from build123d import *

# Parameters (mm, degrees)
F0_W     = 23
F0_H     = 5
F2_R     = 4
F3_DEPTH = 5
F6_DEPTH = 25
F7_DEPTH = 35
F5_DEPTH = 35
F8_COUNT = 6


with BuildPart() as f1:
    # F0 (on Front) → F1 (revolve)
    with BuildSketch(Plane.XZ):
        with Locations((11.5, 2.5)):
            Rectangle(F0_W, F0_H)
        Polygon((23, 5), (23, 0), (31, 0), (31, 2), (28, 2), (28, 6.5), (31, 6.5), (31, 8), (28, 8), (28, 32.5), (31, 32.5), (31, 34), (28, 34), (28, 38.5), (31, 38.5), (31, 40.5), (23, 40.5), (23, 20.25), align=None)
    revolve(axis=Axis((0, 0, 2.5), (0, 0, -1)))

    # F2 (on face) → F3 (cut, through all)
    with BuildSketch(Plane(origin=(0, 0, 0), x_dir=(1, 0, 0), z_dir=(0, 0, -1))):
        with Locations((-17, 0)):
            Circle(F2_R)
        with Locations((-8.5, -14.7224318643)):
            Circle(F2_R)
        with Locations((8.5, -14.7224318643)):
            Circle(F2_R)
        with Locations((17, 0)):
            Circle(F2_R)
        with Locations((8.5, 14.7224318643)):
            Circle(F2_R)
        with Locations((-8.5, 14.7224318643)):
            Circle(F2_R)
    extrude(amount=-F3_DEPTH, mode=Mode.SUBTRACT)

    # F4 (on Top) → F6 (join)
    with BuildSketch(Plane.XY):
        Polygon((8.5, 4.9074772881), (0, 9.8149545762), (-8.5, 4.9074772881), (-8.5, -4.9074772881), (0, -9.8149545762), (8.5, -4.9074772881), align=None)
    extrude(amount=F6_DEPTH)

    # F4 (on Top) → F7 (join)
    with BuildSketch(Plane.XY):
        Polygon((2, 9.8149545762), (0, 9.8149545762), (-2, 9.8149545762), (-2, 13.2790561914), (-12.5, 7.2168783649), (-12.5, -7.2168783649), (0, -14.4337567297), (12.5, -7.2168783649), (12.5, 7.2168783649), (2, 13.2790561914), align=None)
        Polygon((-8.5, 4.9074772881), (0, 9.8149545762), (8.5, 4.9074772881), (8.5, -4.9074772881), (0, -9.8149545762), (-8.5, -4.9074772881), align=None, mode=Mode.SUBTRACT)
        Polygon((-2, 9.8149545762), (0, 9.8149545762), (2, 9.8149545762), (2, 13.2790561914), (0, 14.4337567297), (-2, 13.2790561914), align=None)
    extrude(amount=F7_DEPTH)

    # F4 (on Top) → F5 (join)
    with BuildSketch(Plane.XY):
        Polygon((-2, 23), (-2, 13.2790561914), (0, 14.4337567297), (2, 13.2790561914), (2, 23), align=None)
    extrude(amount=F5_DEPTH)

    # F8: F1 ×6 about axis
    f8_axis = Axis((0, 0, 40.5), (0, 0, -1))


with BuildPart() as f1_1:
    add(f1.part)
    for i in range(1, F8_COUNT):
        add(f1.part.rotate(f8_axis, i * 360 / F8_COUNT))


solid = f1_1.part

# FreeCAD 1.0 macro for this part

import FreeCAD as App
import Part
import Sketcher
from FreeCAD import Vector
Q = App.Units.Quantity

doc = App.newDocument("Part")
body = doc.addObject("PartDesign::Body", "Body")

# Sketch on XZ plane
sketch1 = body.newObject("Sketcher::SketchObject", "Sketch")
sketch1.AttachmentSupport = (doc.getObject("XZ_Plane"), [""])
sketch1.MapMode = "FlatFace"
sketch1.addGeometry(Part.LineSegment(Vector(0, 5, 0), Vector(0, 0, 0)), False)
sketch1.addGeometry(Part.LineSegment(Vector(0, 0, 0), Vector(31, 0, 0)), False)
sketch1.addGeometry(Part.LineSegment(Vector(31, 0, 0), Vector(31, 2, 0)), False)
sketch1.addGeometry(Part.LineSegment(Vector(31, 2, 0), Vector(28, 2, 0)), False)
sketch1.addGeometry(Part.LineSegment(Vector(28, 2, 0), Vector(28, 6.5, 0)), False)
sketch1.addGeometry(Part.LineSegment(Vector(28, 6.5, 0), Vector(31, 6.5, 0)), False)
sketch1.addGeometry(Part.LineSegment(Vector(31, 6.5, 0), Vector(31, 8, 0)), False)
sketch1.addGeometry(Part.LineSegment(Vector(31, 8, 0), Vector(28, 8, 0)), False)
sketch1.addGeometry(Part.LineSegment(Vector(28, 8, 0), Vector(28, 32.5, 0)), False)
sketch1.addGeometry(Part.LineSegment(Vector(28, 32.5, 0), Vector(31, 32.5, 0)), False)
sketch1.addGeometry(Part.LineSegment(Vector(31, 32.5, 0), Vector(31, 34, 0)), False)
sketch1.addGeometry(Part.LineSegment(Vector(31, 34, 0), Vector(28, 34, 0)), False)
sketch1.addGeometry(Part.LineSegment(Vector(28, 34, 0), Vector(28, 38.5, 0)), False)
sketch1.addGeometry(Part.LineSegment(Vector(28, 38.5, 0), Vector(31, 38.5, 0)), False)
sketch1.addGeometry(Part.LineSegment(Vector(31, 38.5, 0), Vector(31, 40.5, 0)), False)
sketch1.addGeometry(Part.LineSegment(Vector(31, 40.5, 0), Vector(23, 40.5, 0)), False)
sketch1.addGeometry(Part.LineSegment(Vector(23, 40.5, 0), Vector(23, 5, 0)), False)
sketch1.addGeometry(Part.LineSegment(Vector(23, 5, 0), Vector(0, 5, 0)), False)
sketch1.addConstraint(Sketcher.Constraint("Coincident", 0, 2, 1, 1))
sketch1.addConstraint(Sketcher.Constraint("Coincident", 1, 2, 2, 1))
sketch1.addConstraint(Sketcher.Constraint("Coincident", 2, 2, 3, 1))
sketch1.addConstraint(Sketcher.Constraint("Coincident", 3, 2, 4, 1))
sketch1.addConstraint(Sketcher.Constraint("Coincident", 4, 2, 5, 1))
sketch1.addConstraint(Sketcher.Constraint("Coincident", 5, 2, 6, 1))
sketch1.addConstraint(Sketcher.Constraint("Coincident", 6, 2, 7, 1))
sketch1.addConstraint(Sketcher.Constraint("Coincident", 7, 2, 8, 1))
sketch1.addConstraint(Sketcher.Constraint("Coincident", 8, 2, 9, 1))
sketch1.addConstraint(Sketcher.Constraint("Coincident", 9, 2, 10, 1))
sketch1.addConstraint(Sketcher.Constraint("Coincident", 10, 2, 11, 1))
sketch1.addConstraint(Sketcher.Constraint("Coincident", 11, 2, 12, 1))
sketch1.addConstraint(Sketcher.Constraint("Coincident", 12, 2, 13, 1))
sketch1.addConstraint(Sketcher.Constraint("Coincident", 13, 2, 14, 1))
sketch1.addConstraint(Sketcher.Constraint("Coincident", 14, 2, 15, 1))
sketch1.addConstraint(Sketcher.Constraint("Coincident", 15, 2, 16, 1))
sketch1.addConstraint(Sketcher.Constraint("Coincident", 16, 2, 17, 1))
sketch1.addConstraint(Sketcher.Constraint("Coincident", 17, 2, 0, 1))
sketch1.addConstraint(Sketcher.Constraint("Vertical", 0))
sketch1.addConstraint(Sketcher.Constraint("Horizontal", 1))
sketch1.addConstraint(Sketcher.Constraint("Vertical", 2))
sketch1.addConstraint(Sketcher.Constraint("Horizontal", 3))
sketch1.addConstraint(Sketcher.Constraint("Vertical", 4))
sketch1.addConstraint(Sketcher.Constraint("Horizontal", 5))
sketch1.addConstraint(Sketcher.Constraint("Vertical", 6))
sketch1.addConstraint(Sketcher.Constraint("Horizontal", 7))
sketch1.addConstraint(Sketcher.Constraint("Vertical", 8))
sketch1.addConstraint(Sketcher.Constraint("Horizontal", 9))
sketch1.addConstraint(Sketcher.Constraint("Vertical", 10))
sketch1.addConstraint(Sketcher.Constraint("Horizontal", 11))
sketch1.addConstraint(Sketcher.Constraint("Vertical", 12))
sketch1.addConstraint(Sketcher.Constraint("Horizontal", 13))
sketch1.addConstraint(Sketcher.Constraint("Vertical", 14))
sketch1.addConstraint(Sketcher.Constraint("Horizontal", 15))
sketch1.addConstraint(Sketcher.Constraint("Vertical", 16))
sketch1.addConstraint(Sketcher.Constraint("Horizontal", 17))
sketch1.addConstraint(Sketcher.Constraint("Coincident", 0, 2, -1, 1))
sketch1.addConstraint(Sketcher.Constraint("Vertical", 2, 2, 5, 2))
sketch1.addConstraint(Sketcher.Constraint("Vertical", 4, 2, 7, 2))
sketch1.addConstraint(Sketcher.Constraint("Vertical", 6, 2, 9, 2))
sketch1.addConstraint(Sketcher.Constraint("Vertical", 8, 2, 11, 2))
sketch1.addConstraint(Sketcher.Constraint("Vertical", 10, 2, 13, 2))
sketch1.addConstraint(Sketcher.Constraint("Equal", 6, 10))
sketch1.addConstraint(Sketcher.Constraint("Equal", 4, 12))
sketch1.addConstraint(Sketcher.Constraint("Equal", 2, 14))
sketch1.addConstraint(Sketcher.Constraint("DistanceX", 1, 1, 1, 2, Q("31 mm")))
sketch1.addConstraint(Sketcher.Constraint("DistanceX", 3, 2, 3, 1, Q("3 mm")))
sketch1.addConstraint(Sketcher.Constraint("DistanceX", 15, 2, 15, 1, Q("8 mm")))
sketch1.addConstraint(Sketcher.Constraint("DistanceY", 0, 2, 0, 1, Q("5 mm")))
sketch1.addConstraint(Sketcher.Constraint("DistanceY", 2, 1, 2, 2, Q("2 mm")))
sketch1.addConstraint(Sketcher.Constraint("DistanceY", 4, 1, 4, 2, Q("4.5 mm")))
sketch1.addConstraint(Sketcher.Constraint("DistanceY", 6, 1, 6, 2, Q("1.5 mm")))
sketch1.addConstraint(Sketcher.Constraint("DistanceY", 8, 1, 8, 2, Q("24.5 mm")))
revolution = body.newObject("PartDesign::Revolution", "Revolution")
revolution.Profile = sketch1
revolution.ReferenceAxis = (sketch1, ["V_Axis"])
revolution.Angle = 360

# Sketch on XY plane
sketch2 = body.newObject("Sketcher::SketchObject", "Sketch001")
sketch2.AttachmentSupport = (doc.getObject("XY_Plane"), [""])
sketch2.MapMode = "FlatFace"
sketch2.addGeometry(Part.Circle(Vector(-17, 0, 0), Vector(0, 0, 1), 4), False)
sketch2.addGeometry(Part.Circle(Vector(-8.5, 14.7, 0), Vector(0, 0, 1), 4), False)
sketch2.addGeometry(Part.Circle(Vector(8.5, 14.7, 0), Vector(0, 0, 1), 4), False)
sketch2.addGeometry(Part.Circle(Vector(17, 0, 0), Vector(0, 0, 1), 4), False)
sketch2.addGeometry(Part.Circle(Vector(8.5, -14.7, 0), Vector(0, 0, 1), 4), False)
sketch2.addGeometry(Part.Circle(Vector(-8.5, -14.7, 0), Vector(0, 0, 1), 4), False)
sketch2.addConstraint(Sketcher.Constraint("Equal", 0, 1))
sketch2.addConstraint(Sketcher.Constraint("Equal", 1, 2))
sketch2.addConstraint(Sketcher.Constraint("Equal", 2, 3))
sketch2.addConstraint(Sketcher.Constraint("Equal", 3, 4))
sketch2.addConstraint(Sketcher.Constraint("Equal", 4, 5))
sketch2.addConstraint(Sketcher.Constraint("Symmetric", 0, 3, 3, 3, -1, 1))
sketch2.addConstraint(Sketcher.Constraint("Symmetric", 1, 3, 4, 3, -1, 1))
sketch2.addConstraint(Sketcher.Constraint("Symmetric", 2, 3, 5, 3, -1, 1))
sketch2.addConstraint(Sketcher.Constraint("Symmetric", 1, 3, 2, 3, -2))
sketch2.addConstraint(Sketcher.Constraint("PointOnObject", 0, 3, -1))
sketch2.addConstraint(Sketcher.Constraint("Diameter", 0, Q("8 mm")))
sketch2.addConstraint(Sketcher.Constraint("DistanceX", 0, 3, -1, 1, Q("17 mm")))
sketch2.addConstraint(Sketcher.Constraint("DistanceX", 1, 3, 2, 3, Q("17 mm")))
sketch2.addConstraint(Sketcher.Constraint("DistanceY", -1, 1, 1, 3, Q("14.722432 mm")))
pocket1 = body.newObject("PartDesign::Pocket", "Pocket")
pocket1.Profile = sketch2
pocket1.Type = "ThroughAll"
pocket1.Reversed = True

# Sketch on XY plane
sketch3 = body.newObject("Sketcher::SketchObject", "Sketch002")
sketch3.AttachmentSupport = (doc.getObject("XY_Plane"), [""])
sketch3.MapMode = "FlatFace"
sketch3.addGeometry(Part.LineSegment(Vector(8, 5, 0), Vector(0, 10, 0)), False)
sketch3.addGeometry(Part.LineSegment(Vector(0, 10, 0), Vector(-8, 5, 0)), False)
sketch3.addGeometry(Part.LineSegment(Vector(-8, 5, 0), Vector(-8, -5, 0)), False)
sketch3.addGeometry(Part.LineSegment(Vector(-8, -5, 0), Vector(0, -10, 0)), False)
sketch3.addGeometry(Part.LineSegment(Vector(0, -10, 0), Vector(8, -5, 0)), False)
sketch3.addGeometry(Part.LineSegment(Vector(8, -5, 0), Vector(8, 5, 0)), False)
sketch3.addConstraint(Sketcher.Constraint("Coincident", 0, 2, 1, 1))
sketch3.addConstraint(Sketcher.Constraint("Coincident", 1, 2, 2, 1))
sketch3.addConstraint(Sketcher.Constraint("Coincident", 2, 2, 3, 1))
sketch3.addConstraint(Sketcher.Constraint("Coincident", 3, 2, 4, 1))
sketch3.addConstraint(Sketcher.Constraint("Coincident", 4, 2, 5, 1))
sketch3.addConstraint(Sketcher.Constraint("Coincident", 5, 2, 0, 1))
sketch3.addConstraint(Sketcher.Constraint("Vertical", 2))
sketch3.addConstraint(Sketcher.Constraint("Vertical", 5))
sketch3.addConstraint(Sketcher.Constraint("Symmetric", 0, 2, 3, 2, -1, 1))
sketch3.addConstraint(Sketcher.Constraint("Symmetric", 1, 2, 4, 2, -1, 1))
sketch3.addConstraint(Sketcher.Constraint("PointOnObject", 0, 2, -2))
sketch3.addConstraint(Sketcher.Constraint("Parallel", 0, 3))
sketch3.addConstraint(Sketcher.Constraint("Horizontal", 2, 2, 4, 2))
sketch3.addConstraint(Sketcher.Constraint("Angle", 0, Q("150 deg")))
sketch3.addConstraint(Sketcher.Constraint("DistanceX", 2, 2, 4, 2, Q("17 mm")))
sketch3.addConstraint(Sketcher.Constraint("DistanceY", 2, 2, 2, 1, Q("9.814955 mm")))
pad1 = body.newObject("PartDesign::Pad", "Pad")
pad1.Profile = sketch3
pad1.Length = 25

# Sketch on XY plane
sketch4 = body.newObject("Sketcher::SketchObject", "Sketch003")
sketch4.AttachmentSupport = (doc.getObject("XY_Plane"), [""])
sketch4.MapMode = "FlatFace"
sketch4.addGeometry(Part.LineSegment(Vector(12.5, 7.2, 0), Vector(2, 13.3, 0)), False)
sketch4.addGeometry(Part.LineSegment(Vector(2, 13.3, 0), Vector(0, 14.4, 0)), False)
sketch4.addGeometry(Part.LineSegment(Vector(0, 14.4, 0), Vector(-2, 13.3, 0)), False)
sketch4.addGeometry(Part.LineSegment(Vector(-2, 13.3, 0), Vector(-12.5, 7.2, 0)), False)
sketch4.addGeometry(Part.LineSegment(Vector(-12.5, 7.2, 0), Vector(-12.5, -7.2, 0)), False)
sketch4.addGeometry(Part.LineSegment(Vector(-12.5, -7.2, 0), Vector(0, -14.4, 0)), False)
sketch4.addGeometry(Part.LineSegment(Vector(0, -14.4, 0), Vector(12.5, -7.2, 0)), False)
sketch4.addGeometry(Part.LineSegment(Vector(12.5, -7.2, 0), Vector(12.5, 7.2, 0)), False)
sketch4.addGeometry(Part.LineSegment(Vector(-8.5, 4.9, 0), Vector(0, 9.8, 0)), False)
sketch4.addGeometry(Part.LineSegment(Vector(0, 9.8, 0), Vector(8.5, 4.9, 0)), False)
sketch4.addGeometry(Part.LineSegment(Vector(8.5, 4.9, 0), Vector(8.5, -4.9, 0)), False)
sketch4.addGeometry(Part.LineSegment(Vector(8.5, -4.9, 0), Vector(0, -9.8, 0)), False)
sketch4.addGeometry(Part.LineSegment(Vector(0, -9.8, 0), Vector(-8.5, -4.9, 0)), False)
sketch4.addGeometry(Part.LineSegment(Vector(-8.5, -4.9, 0), Vector(-8.5, 4.9, 0)), False)
sketch4.addConstraint(Sketcher.Constraint("Coincident", 0, 2, 1, 1))
sketch4.addConstraint(Sketcher.Constraint("Coincident", 1, 2, 2, 1))
sketch4.addConstraint(Sketcher.Constraint("Coincident", 2, 2, 3, 1))
sketch4.addConstraint(Sketcher.Constraint("Coincident", 3, 2, 4, 1))
sketch4.addConstraint(Sketcher.Constraint("Coincident", 4, 2, 5, 1))
sketch4.addConstraint(Sketcher.Constraint("Coincident", 5, 2, 6, 1))
sketch4.addConstraint(Sketcher.Constraint("Coincident", 6, 2, 7, 1))
sketch4.addConstraint(Sketcher.Constraint("Coincident", 7, 2, 0, 1))
sketch4.addConstraint(Sketcher.Constraint("Coincident", 8, 2, 9, 1))
sketch4.addConstraint(Sketcher.Constraint("Coincident", 9, 2, 10, 1))
sketch4.addConstraint(Sketcher.Constraint("Coincident", 10, 2, 11, 1))
sketch4.addConstraint(Sketcher.Constraint("Coincident", 11, 2, 12, 1))
sketch4.addConstraint(Sketcher.Constraint("Coincident", 12, 2, 13, 1))
sketch4.addConstraint(Sketcher.Constraint("Coincident", 13, 2, 8, 1))
sketch4.addConstraint(Sketcher.Constraint("Vertical", 4))
sketch4.addConstraint(Sketcher.Constraint("Vertical", 7))
sketch4.addConstraint(Sketcher.Constraint("Vertical", 10))
sketch4.addConstraint(Sketcher.Constraint("Vertical", 13))
sketch4.addConstraint(Sketcher.Constraint("Symmetric", 1, 2, 5, 2, -1, 1))
sketch4.addConstraint(Sketcher.Constraint("Symmetric", 3, 2, 6, 2, -1, 1))
sketch4.addConstraint(Sketcher.Constraint("Symmetric", 8, 2, 11, 2, -1, 1))
sketch4.addConstraint(Sketcher.Constraint("Symmetric", 9, 2, 12, 2, -1, 1))
sketch4.addConstraint(Sketcher.Constraint("Symmetric", 0, 2, 2, 2, -2))
sketch4.addConstraint(Sketcher.Constraint("PointOnObject", 1, 2, -2))
sketch4.addConstraint(Sketcher.Constraint("PointOnObject", 8, 2, -2))
sketch4.addConstraint(Sketcher.Constraint("Parallel", 0, 1))
sketch4.addConstraint(Sketcher.Constraint("Parallel", 2, 3))
sketch4.addConstraint(Sketcher.Constraint("Parallel", 1, 5))
sketch4.addConstraint(Sketcher.Constraint("Parallel", 6, 8))
sketch4.addConstraint(Sketcher.Constraint("Parallel", 5, 9))
sketch4.addConstraint(Sketcher.Constraint("Parallel", 8, 11))
sketch4.addConstraint(Sketcher.Constraint("Angle", 0, Q("150 deg")))
sketch4.addConstraint(Sketcher.Constraint("DistanceX", -1, 1, 0, 2, Q("2 mm")))
sketch4.addConstraint(Sketcher.Constraint("DistanceX", 4, 2, 6, 2, Q("25 mm")))
sketch4.addConstraint(Sketcher.Constraint("DistanceX", 9, 2, 7, 2, Q("4 mm")))
sketch4.addConstraint(Sketcher.Constraint("DistanceY", 8, 2, 0, 2, Q("3.464102 mm")))
sketch4.addConstraint(Sketcher.Constraint("DistanceY", 4, 2, 4, 1, Q("14.433757 mm")))
pad2 = body.newObject("PartDesign::Pad", "Pad001")
pad2.Profile = sketch4
pad2.Length = 35

# Sketch on XY plane
sketch5 = body.newObject("Sketcher::SketchObject", "Sketch004")
sketch5.AttachmentSupport = (doc.getObject("XY_Plane"), [""])
sketch5.MapMode = "FlatFace"
sketch5.addGeometry(Part.LineSegment(Vector(-2, 23, 0), Vector(-2, 13.3, 0)), False)
sketch5.addGeometry(Part.LineSegment(Vector(-2, 13.3, 0), Vector(0, 14.4, 0)), False)
sketch5.addGeometry(Part.LineSegment(Vector(0, 14.4, 0), Vector(2, 13.3, 0)), False)
sketch5.addGeometry(Part.LineSegment(Vector(2, 13.3, 0), Vector(2, 23, 0)), False)
sketch5.addGeometry(Part.LineSegment(Vector(2, 23, 0), Vector(-2, 23, 0)), False)
sketch5.addConstraint(Sketcher.Constraint("Coincident", 0, 2, 1, 1))
sketch5.addConstraint(Sketcher.Constraint("Coincident", 1, 2, 2, 1))
sketch5.addConstraint(Sketcher.Constraint("Coincident", 2, 2, 3, 1))
sketch5.addConstraint(Sketcher.Constraint("Coincident", 3, 2, 4, 1))
sketch5.addConstraint(Sketcher.Constraint("Coincident", 4, 2, 0, 1))
sketch5.addConstraint(Sketcher.Constraint("Vertical", 0))
sketch5.addConstraint(Sketcher.Constraint("Vertical", 3))
sketch5.addConstraint(Sketcher.Constraint("Horizontal", 4))
sketch5.addConstraint(Sketcher.Constraint("Symmetric", 0, 2, 2, 2, -2))
sketch5.addConstraint(Sketcher.Constraint("PointOnObject", 1, 2, -2))
sketch5.addConstraint(Sketcher.Constraint("DistanceX", 4, 2, 4, 1, Q("4 mm")))
sketch5.addConstraint(Sketcher.Constraint("Angle", 1, Q("30 deg")))
sketch5.addConstraint(Sketcher.Constraint("DistanceY", -1, 1, 3, 2, Q("23 mm")))
sketch5.addConstraint(Sketcher.Constraint("DistanceY", 0, 2, 0, 1, Q("9.720944 mm")))
pad3 = body.newObject("PartDesign::Pad", "Pad002")
pad3.Profile = sketch5
pad3.Length = 35
body2 = doc.addObject("PartDesign::Body", "Body001")
doc.recompute()

body2.BaseFeature = body
doc.recompute()

body3 = doc.addObject("PartDesign::Body", "Body002")
body3.BaseFeature = body
body3.Placement = App.Placement(Vector(0, 0, 0), App.Rotation(Vector(0, 0, -1), 60))
boolean = body2.newObject("PartDesign::Boolean", "Boolean")
boolean.Type = "Fuse"
boolean.addObjects([body3])
doc.recompute()

body4 = doc.addObject("PartDesign::Body", "Body003")
body4.BaseFeature = body
body4.Placement = App.Placement(Vector(0, 0, 0), App.Rotation(Vector(0, 0, -1), 120))
boolean2 = body2.newObject("PartDesign::Boolean", "Boolean001")
boolean2.Type = "Fuse"
boolean2.addObjects([body4])
doc.recompute()

body5 = doc.addObject("PartDesign::Body", "Body004")
body5.BaseFeature = body
body5.Placement = App.Placement(Vector(0, 0, 0), App.Rotation(Vector(0, 0, -1), 180))
boolean3 = body2.newObject("PartDesign::Boolean", "Boolean002")
boolean3.Type = "Fuse"
boolean3.addObjects([body5])
doc.recompute()

body6 = doc.addObject("PartDesign::Body", "Body005")
body6.BaseFeature = body
body6.Placement = App.Placement(Vector(0, 0, 0), App.Rotation(Vector(0, 0, -1), 240))
boolean4 = body2.newObject("PartDesign::Boolean", "Boolean003")
boolean4.Type = "Fuse"
boolean4.addObjects([body6])
doc.recompute()

body.Placement = App.Placement(Vector(0, 0, 0), App.Rotation(Vector(0, 0, -1), 300))
boolean5 = body2.newObject("PartDesign::Boolean", "Boolean004")
boolean5.Type = "Fuse"
boolean5.addObjects([body])

doc.recompute()
